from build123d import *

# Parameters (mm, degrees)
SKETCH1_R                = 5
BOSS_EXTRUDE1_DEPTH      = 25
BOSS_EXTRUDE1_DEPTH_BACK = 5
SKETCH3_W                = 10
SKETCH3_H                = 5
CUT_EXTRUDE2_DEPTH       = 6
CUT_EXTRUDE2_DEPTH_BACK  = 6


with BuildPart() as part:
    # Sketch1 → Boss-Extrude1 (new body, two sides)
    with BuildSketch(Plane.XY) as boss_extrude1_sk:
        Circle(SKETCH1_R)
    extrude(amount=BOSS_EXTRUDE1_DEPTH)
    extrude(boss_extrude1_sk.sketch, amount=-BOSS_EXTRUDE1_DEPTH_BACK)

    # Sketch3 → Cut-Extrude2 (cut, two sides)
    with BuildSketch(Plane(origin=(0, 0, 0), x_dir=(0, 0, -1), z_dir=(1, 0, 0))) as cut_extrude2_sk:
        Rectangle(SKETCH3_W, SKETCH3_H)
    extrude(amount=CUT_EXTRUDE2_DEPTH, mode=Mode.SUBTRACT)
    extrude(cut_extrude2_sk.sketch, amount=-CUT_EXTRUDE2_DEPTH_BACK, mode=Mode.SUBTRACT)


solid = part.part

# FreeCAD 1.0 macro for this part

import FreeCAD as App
import Part
import Sketcher
Q = App.Units.Quantity

doc = App.newDocument("Part")
body = doc.addObject("PartDesign::Body", "Body")

# Sketch on XY plane
sketch1 = body.newObject("Sketcher::SketchObject", "Sketch")
sketch1.AttachmentSupport = (doc.getObject("XY_Plane"), [""])
sketch1.MapMode = "FlatFace"
sketch1.addGeometry(Part.Circle(App.Vector(0, 0, 0), App.Vector(0, 0, 1), 5), False)
sketch1.addConstraint(Sketcher.Constraint("Coincident", 0, 3, -1, 1))
sketch1.addConstraint(Sketcher.Constraint("Diameter", 0, Q("10 mm")))
pad1 = body.newObject("PartDesign::Pad", "Pad")
pad1.Profile = sketch1
pad1.Type = "TwoLengths"
pad1.Length = 25
pad1.Length2 = 5

# Sketch on YZ plane
sketch2 = body.newObject("Sketcher::SketchObject", "Sketch001")
sketch2.AttachmentSupport = (doc.getObject("YZ_Plane"), [""])
sketch2.MapMode = "FlatFace"
sketch2.addGeometry(Part.LineSegment(App.Vector(2, 5, 0), App.Vector(-2, 5, 0)), False)
sketch2.addGeometry(Part.LineSegment(App.Vector(-2, 5, 0), App.Vector(-2, -5, 0)), False)
sketch2.addGeometry(Part.LineSegment(App.Vector(-2, -5, 0), App.Vector(2, -5, 0)), False)
sketch2.addGeometry(Part.LineSegment(App.Vector(2, -5, 0), App.Vector(2, 5, 0)), False)
sketch2.addConstraint(Sketcher.Constraint("Coincident", 0, 2, 1, 1))
sketch2.addConstraint(Sketcher.Constraint("Coincident", 1, 2, 2, 1))
sketch2.addConstraint(Sketcher.Constraint("Coincident", 2, 2, 3, 1))
sketch2.addConstraint(Sketcher.Constraint("Coincident", 3, 2, 0, 1))
sketch2.addConstraint(Sketcher.Constraint("Horizontal", 0))
sketch2.addConstraint(Sketcher.Constraint("Vertical", 1))
sketch2.addConstraint(Sketcher.Constraint("Horizontal", 2))
sketch2.addConstraint(Sketcher.Constraint("Vertical", 3))
sketch2.addConstraint(Sketcher.Constraint("Symmetric", 0, 2, 2, 2, -1, 1))
sketch2.addConstraint(Sketcher.Constraint("DistanceX", 0, 2, 0, 1, Q("5 mm")))
sketch2.addConstraint(Sketcher.Constraint("DistanceY", 1, 2, 1, 1, Q("10 mm")))
pocket1 = body.newObject("PartDesign::Pocket", "Pocket")
pocket1.Profile = sketch2
pocket1.Type = "ThroughAll"
pocket1.Midplane = True

doc.recompute()
